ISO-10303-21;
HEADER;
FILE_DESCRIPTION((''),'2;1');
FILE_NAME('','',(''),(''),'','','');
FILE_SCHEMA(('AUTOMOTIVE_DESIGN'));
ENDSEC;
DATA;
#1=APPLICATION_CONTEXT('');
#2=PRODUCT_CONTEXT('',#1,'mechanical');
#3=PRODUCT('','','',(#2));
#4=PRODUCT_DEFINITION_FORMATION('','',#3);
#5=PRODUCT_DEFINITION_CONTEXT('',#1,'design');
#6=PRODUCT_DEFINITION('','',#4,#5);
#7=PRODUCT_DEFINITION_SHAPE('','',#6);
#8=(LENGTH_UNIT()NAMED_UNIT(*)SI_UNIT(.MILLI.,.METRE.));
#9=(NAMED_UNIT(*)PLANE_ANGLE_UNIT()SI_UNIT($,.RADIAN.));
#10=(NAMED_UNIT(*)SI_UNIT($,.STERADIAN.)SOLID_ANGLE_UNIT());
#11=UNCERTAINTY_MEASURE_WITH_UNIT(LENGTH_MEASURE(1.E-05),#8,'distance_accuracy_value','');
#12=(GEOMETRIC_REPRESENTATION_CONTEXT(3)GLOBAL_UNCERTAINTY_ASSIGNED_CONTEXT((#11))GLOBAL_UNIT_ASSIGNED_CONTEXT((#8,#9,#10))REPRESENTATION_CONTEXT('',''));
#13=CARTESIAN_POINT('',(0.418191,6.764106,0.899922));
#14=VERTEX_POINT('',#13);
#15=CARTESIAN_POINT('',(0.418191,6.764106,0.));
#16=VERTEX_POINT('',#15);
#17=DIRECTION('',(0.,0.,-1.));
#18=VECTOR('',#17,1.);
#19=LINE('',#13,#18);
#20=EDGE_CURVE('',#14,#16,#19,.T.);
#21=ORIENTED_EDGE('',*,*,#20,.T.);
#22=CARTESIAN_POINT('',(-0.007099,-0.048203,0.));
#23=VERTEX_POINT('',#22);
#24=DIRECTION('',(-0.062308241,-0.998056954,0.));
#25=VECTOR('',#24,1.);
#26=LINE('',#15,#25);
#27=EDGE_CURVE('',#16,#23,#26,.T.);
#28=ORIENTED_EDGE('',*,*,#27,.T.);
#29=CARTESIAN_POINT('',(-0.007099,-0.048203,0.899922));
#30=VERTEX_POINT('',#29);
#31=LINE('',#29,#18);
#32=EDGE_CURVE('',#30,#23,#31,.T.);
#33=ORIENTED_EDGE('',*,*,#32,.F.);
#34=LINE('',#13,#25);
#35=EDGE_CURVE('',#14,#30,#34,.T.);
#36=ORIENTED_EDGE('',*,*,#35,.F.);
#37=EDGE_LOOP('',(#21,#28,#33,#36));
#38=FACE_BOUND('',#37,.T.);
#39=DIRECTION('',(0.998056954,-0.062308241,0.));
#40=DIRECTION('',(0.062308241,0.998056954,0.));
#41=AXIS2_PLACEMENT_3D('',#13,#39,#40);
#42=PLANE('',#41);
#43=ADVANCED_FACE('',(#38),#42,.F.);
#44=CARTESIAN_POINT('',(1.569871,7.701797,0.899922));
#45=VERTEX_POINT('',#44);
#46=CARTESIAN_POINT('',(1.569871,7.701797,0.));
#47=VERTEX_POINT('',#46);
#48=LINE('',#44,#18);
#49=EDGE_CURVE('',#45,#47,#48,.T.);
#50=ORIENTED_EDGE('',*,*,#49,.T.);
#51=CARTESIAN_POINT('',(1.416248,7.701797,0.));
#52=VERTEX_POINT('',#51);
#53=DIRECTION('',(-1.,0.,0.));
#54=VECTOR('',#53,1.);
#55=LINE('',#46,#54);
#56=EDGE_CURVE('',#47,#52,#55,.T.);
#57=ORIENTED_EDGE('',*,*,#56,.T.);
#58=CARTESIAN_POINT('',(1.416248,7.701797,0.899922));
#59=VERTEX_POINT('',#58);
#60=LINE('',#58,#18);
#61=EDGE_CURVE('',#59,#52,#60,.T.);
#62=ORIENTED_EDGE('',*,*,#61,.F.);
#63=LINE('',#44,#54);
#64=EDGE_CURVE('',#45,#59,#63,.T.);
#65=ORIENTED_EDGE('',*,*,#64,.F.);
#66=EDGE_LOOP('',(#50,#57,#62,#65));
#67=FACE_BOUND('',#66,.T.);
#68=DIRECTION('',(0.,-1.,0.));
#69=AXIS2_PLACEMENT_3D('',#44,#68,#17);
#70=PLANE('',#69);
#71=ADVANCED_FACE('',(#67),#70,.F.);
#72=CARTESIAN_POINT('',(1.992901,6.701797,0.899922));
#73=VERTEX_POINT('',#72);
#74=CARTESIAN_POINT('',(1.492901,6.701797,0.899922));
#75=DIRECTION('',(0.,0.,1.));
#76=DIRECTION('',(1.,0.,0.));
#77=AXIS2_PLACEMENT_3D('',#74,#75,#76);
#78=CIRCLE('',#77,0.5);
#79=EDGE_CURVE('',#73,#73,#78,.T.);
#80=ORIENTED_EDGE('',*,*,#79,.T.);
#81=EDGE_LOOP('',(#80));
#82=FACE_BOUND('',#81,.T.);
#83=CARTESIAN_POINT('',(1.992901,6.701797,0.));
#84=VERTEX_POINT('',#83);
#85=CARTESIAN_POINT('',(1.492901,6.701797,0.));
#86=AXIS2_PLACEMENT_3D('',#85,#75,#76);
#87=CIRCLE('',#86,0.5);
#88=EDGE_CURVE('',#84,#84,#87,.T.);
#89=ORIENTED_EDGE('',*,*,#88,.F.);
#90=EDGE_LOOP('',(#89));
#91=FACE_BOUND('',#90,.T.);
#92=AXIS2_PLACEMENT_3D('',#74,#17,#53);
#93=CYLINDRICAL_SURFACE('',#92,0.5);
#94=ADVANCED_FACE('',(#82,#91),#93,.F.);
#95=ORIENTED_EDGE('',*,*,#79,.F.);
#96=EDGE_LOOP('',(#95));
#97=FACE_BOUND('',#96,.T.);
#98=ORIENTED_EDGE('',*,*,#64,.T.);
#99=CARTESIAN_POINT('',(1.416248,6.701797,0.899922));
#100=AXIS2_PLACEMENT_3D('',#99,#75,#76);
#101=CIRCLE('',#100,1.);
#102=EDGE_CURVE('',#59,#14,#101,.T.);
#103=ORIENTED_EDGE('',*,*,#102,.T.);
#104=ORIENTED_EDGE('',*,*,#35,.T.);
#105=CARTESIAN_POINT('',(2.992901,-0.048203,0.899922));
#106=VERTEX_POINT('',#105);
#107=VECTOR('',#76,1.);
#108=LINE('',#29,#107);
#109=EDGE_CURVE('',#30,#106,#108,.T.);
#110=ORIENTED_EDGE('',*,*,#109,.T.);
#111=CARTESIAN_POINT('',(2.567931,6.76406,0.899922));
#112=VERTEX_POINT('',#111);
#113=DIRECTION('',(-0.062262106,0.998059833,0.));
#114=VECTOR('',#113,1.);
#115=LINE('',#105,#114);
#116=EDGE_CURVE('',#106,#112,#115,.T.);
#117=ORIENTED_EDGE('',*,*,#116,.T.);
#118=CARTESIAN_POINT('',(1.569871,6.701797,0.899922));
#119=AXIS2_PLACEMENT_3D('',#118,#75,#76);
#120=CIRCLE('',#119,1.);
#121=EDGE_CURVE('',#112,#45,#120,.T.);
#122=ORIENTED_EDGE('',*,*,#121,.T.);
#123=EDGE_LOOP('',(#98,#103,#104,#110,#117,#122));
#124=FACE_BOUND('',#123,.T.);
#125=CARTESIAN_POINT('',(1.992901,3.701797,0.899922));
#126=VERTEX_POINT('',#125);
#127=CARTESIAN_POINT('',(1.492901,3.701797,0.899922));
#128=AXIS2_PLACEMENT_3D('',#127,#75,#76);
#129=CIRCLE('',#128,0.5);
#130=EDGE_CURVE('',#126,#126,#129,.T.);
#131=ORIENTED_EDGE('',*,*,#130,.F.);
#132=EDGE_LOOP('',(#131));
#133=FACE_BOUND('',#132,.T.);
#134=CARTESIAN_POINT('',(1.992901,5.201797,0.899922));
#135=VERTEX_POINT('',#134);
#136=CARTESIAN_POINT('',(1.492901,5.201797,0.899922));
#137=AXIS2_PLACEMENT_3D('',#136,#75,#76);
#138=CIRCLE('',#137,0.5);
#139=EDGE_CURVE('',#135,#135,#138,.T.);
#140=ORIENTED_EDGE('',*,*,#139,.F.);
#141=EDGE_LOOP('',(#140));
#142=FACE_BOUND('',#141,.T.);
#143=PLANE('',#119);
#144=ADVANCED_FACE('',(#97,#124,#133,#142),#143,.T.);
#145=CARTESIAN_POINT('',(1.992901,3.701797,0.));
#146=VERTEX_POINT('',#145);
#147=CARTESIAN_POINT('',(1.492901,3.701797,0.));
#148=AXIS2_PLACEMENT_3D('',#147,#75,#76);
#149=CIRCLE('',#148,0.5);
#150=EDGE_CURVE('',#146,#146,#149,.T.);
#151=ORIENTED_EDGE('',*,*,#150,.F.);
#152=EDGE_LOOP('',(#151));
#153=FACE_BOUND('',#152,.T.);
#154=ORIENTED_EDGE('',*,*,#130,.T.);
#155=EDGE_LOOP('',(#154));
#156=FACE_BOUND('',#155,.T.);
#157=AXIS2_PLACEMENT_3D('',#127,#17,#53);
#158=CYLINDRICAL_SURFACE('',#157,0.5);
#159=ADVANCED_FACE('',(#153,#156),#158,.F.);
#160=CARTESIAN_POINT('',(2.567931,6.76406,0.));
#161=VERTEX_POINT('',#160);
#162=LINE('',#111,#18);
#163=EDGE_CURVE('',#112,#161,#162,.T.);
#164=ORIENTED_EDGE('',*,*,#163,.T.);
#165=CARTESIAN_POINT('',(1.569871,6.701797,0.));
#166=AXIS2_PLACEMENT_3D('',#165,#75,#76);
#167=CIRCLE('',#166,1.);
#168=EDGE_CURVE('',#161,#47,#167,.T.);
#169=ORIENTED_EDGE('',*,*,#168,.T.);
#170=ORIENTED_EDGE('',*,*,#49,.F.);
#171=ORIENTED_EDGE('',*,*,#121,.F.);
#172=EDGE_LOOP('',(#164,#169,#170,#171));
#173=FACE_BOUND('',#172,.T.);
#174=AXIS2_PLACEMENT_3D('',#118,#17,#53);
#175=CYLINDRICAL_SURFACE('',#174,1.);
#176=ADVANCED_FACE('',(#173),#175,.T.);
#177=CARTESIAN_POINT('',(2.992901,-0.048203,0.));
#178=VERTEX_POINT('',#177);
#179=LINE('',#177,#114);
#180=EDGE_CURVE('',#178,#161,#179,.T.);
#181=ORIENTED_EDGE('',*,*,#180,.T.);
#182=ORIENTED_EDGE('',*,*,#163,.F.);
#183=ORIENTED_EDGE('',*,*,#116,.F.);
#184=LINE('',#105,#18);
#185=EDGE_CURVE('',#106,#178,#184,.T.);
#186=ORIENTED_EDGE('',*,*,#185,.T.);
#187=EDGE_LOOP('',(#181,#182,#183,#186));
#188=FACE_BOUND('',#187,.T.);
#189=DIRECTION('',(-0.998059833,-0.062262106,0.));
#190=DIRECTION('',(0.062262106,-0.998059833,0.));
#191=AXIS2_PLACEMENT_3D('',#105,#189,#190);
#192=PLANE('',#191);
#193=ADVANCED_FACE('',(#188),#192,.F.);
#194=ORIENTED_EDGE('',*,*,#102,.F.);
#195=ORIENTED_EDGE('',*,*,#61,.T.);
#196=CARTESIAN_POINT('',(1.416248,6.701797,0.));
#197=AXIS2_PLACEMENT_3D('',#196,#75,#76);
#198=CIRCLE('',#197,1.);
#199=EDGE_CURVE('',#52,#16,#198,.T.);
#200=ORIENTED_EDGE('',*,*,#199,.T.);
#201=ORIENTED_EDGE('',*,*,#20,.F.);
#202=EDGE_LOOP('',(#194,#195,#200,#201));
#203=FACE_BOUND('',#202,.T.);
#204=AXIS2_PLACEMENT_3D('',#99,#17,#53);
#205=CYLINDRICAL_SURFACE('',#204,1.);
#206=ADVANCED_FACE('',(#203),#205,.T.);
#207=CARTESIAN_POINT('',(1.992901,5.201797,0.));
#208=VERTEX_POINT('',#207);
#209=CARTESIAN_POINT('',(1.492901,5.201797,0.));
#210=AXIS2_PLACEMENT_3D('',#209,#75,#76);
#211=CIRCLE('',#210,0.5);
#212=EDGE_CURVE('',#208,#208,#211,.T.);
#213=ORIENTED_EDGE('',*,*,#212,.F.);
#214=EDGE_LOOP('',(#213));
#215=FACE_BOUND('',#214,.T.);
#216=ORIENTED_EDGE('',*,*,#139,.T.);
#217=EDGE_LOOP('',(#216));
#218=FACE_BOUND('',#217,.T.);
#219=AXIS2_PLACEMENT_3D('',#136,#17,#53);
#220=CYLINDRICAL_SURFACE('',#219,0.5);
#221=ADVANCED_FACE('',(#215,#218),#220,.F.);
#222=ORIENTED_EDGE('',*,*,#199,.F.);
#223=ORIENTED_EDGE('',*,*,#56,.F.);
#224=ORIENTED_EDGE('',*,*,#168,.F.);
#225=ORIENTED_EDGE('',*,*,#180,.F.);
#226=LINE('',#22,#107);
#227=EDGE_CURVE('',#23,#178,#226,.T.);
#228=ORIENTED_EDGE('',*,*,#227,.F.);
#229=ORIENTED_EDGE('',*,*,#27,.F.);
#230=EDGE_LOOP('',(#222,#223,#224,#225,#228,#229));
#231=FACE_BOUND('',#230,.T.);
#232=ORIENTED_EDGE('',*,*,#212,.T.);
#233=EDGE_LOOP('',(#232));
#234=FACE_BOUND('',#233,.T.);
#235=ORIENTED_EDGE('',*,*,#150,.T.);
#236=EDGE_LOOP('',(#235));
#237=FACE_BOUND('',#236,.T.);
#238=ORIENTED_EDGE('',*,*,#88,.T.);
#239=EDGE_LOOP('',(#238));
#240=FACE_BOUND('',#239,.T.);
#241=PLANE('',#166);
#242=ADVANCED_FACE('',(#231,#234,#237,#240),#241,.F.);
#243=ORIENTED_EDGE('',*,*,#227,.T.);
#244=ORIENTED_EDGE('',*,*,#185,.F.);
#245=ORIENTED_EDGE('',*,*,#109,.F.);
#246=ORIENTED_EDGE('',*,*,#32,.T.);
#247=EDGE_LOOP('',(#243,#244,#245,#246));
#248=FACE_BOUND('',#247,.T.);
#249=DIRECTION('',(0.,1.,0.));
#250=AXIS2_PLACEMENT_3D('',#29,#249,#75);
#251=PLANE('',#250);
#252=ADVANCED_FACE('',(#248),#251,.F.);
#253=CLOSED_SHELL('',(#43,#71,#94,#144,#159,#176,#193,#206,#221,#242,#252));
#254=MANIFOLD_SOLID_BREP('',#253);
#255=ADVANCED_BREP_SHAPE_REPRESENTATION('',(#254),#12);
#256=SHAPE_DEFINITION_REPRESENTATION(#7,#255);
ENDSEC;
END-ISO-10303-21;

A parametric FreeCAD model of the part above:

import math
import FreeCAD as App
import Part
import Sketcher

doc = App.newDocument("Part")
body = doc.addObject("PartDesign::Body", "Body")

# Sketch on XY plane
sketch1 = body.newObject("Sketcher::SketchObject", "Sketch")
sketch1.AttachmentSupport = (doc.getObject("XY_Plane"), [""])
sketch1.MapMode = "FlatFace"
sketch1.addGeometry([
    Part.LineSegment(App.Vector(1.57, 7.7, 0), App.Vector(1.42, 7.7, 0)),  # 0
    Part.ArcOfCircle(Part.Circle(App.Vector(1.42, 6.7, 0), App.Vector(0, 0, 1), 1), math.radians(90), math.radians(176)),  # 1
    Part.LineSegment(App.Vector(0.42, 6.76, 0), App.Vector(-0.01, -0.05, 0)),  # 2
    Part.LineSegment(App.Vector(-0.01, -0.05, 0), App.Vector(2.99, -0.05, 0)),  # 3
    Part.LineSegment(App.Vector(2.99, -0.05, 0), App.Vector(2.57, 6.76, 0)),  # 4
    Part.ArcOfCircle(Part.Circle(App.Vector(1.57, 6.7, 0), App.Vector(0, 0, 1), 1), math.radians(4), math.radians(90)),  # 5
    Part.Circle(App.Vector(1.49, 3.7, 0), App.Vector(0, 0, 1), 0.5),  # 6
    Part.Circle(App.Vector(1.49, 5.2, 0), App.Vector(0, 0, 1), 0.5),  # 7
    Part.Circle(App.Vector(1.49, 6.7, 0), App.Vector(0, 0, 1), 0.5),  # 8
], False)
sketch1.addConstraint([
    Sketcher.Constraint("Tangent", 0, 2, 1, 1),
    Sketcher.Constraint("Tangent", 1, 2, 2, 1),
    Sketcher.Constraint("Coincident", 2, 2, 3, 1),
    Sketcher.Constraint("Coincident", 3, 2, 4, 1),
    Sketcher.Constraint("Tangent", 4, 2, 5, 1),
    Sketcher.Constraint("Tangent", 5, 2, 0, 1),
    Sketcher.Constraint("Horizontal", 0),
    Sketcher.Constraint("Horizontal", 3),
    Sketcher.Constraint("Equal", 1, 5),
    Sketcher.Constraint("Equal", 6, 7),
    Sketcher.Constraint("Equal", 7, 8),
    Sketcher.Constraint("Horizontal", 5, 3, 8, 3),
    Sketcher.Constraint("Vertical", 6, 3, 7, 3),
    Sketcher.Constraint("Vertical", 7, 3, 8, 3),
    Sketcher.Constraint("Diameter", 6, 1.0),
    Sketcher.Constraint("Radius", 1, 1.0),
    Sketcher.Constraint("DistanceX", 3, 1, 3, 2, 3.0),
    Sketcher.Constraint("DistanceY", 6, 3, 1, 3, 3.0),
    Sketcher.Constraint("DistanceY", 6, 3, 7, 3, 1.5),
    Sketcher.Constraint("DistanceX", 2, 2, 6, 3, 1.5),
    Sketcher.Constraint("DistanceY", 2, 2, 6, 3, 3.75),
    Sketcher.Constraint("DistanceX", -1, 1, 6, 3, 1.492901),
    Sketcher.Constraint("Distance", 2, 6.825571),
    Sketcher.Constraint("DistanceX", 0, 2, 0, 1, 0.153624),
    Sketcher.Constraint("DistanceY", -1, 1, 4, 2, 6.76406),
])
pad1 = body.newObject("PartDesign::Pad", "Pad")
pad1.Profile = sketch1
pad1.Length = 0.899922

doc.recompute()
